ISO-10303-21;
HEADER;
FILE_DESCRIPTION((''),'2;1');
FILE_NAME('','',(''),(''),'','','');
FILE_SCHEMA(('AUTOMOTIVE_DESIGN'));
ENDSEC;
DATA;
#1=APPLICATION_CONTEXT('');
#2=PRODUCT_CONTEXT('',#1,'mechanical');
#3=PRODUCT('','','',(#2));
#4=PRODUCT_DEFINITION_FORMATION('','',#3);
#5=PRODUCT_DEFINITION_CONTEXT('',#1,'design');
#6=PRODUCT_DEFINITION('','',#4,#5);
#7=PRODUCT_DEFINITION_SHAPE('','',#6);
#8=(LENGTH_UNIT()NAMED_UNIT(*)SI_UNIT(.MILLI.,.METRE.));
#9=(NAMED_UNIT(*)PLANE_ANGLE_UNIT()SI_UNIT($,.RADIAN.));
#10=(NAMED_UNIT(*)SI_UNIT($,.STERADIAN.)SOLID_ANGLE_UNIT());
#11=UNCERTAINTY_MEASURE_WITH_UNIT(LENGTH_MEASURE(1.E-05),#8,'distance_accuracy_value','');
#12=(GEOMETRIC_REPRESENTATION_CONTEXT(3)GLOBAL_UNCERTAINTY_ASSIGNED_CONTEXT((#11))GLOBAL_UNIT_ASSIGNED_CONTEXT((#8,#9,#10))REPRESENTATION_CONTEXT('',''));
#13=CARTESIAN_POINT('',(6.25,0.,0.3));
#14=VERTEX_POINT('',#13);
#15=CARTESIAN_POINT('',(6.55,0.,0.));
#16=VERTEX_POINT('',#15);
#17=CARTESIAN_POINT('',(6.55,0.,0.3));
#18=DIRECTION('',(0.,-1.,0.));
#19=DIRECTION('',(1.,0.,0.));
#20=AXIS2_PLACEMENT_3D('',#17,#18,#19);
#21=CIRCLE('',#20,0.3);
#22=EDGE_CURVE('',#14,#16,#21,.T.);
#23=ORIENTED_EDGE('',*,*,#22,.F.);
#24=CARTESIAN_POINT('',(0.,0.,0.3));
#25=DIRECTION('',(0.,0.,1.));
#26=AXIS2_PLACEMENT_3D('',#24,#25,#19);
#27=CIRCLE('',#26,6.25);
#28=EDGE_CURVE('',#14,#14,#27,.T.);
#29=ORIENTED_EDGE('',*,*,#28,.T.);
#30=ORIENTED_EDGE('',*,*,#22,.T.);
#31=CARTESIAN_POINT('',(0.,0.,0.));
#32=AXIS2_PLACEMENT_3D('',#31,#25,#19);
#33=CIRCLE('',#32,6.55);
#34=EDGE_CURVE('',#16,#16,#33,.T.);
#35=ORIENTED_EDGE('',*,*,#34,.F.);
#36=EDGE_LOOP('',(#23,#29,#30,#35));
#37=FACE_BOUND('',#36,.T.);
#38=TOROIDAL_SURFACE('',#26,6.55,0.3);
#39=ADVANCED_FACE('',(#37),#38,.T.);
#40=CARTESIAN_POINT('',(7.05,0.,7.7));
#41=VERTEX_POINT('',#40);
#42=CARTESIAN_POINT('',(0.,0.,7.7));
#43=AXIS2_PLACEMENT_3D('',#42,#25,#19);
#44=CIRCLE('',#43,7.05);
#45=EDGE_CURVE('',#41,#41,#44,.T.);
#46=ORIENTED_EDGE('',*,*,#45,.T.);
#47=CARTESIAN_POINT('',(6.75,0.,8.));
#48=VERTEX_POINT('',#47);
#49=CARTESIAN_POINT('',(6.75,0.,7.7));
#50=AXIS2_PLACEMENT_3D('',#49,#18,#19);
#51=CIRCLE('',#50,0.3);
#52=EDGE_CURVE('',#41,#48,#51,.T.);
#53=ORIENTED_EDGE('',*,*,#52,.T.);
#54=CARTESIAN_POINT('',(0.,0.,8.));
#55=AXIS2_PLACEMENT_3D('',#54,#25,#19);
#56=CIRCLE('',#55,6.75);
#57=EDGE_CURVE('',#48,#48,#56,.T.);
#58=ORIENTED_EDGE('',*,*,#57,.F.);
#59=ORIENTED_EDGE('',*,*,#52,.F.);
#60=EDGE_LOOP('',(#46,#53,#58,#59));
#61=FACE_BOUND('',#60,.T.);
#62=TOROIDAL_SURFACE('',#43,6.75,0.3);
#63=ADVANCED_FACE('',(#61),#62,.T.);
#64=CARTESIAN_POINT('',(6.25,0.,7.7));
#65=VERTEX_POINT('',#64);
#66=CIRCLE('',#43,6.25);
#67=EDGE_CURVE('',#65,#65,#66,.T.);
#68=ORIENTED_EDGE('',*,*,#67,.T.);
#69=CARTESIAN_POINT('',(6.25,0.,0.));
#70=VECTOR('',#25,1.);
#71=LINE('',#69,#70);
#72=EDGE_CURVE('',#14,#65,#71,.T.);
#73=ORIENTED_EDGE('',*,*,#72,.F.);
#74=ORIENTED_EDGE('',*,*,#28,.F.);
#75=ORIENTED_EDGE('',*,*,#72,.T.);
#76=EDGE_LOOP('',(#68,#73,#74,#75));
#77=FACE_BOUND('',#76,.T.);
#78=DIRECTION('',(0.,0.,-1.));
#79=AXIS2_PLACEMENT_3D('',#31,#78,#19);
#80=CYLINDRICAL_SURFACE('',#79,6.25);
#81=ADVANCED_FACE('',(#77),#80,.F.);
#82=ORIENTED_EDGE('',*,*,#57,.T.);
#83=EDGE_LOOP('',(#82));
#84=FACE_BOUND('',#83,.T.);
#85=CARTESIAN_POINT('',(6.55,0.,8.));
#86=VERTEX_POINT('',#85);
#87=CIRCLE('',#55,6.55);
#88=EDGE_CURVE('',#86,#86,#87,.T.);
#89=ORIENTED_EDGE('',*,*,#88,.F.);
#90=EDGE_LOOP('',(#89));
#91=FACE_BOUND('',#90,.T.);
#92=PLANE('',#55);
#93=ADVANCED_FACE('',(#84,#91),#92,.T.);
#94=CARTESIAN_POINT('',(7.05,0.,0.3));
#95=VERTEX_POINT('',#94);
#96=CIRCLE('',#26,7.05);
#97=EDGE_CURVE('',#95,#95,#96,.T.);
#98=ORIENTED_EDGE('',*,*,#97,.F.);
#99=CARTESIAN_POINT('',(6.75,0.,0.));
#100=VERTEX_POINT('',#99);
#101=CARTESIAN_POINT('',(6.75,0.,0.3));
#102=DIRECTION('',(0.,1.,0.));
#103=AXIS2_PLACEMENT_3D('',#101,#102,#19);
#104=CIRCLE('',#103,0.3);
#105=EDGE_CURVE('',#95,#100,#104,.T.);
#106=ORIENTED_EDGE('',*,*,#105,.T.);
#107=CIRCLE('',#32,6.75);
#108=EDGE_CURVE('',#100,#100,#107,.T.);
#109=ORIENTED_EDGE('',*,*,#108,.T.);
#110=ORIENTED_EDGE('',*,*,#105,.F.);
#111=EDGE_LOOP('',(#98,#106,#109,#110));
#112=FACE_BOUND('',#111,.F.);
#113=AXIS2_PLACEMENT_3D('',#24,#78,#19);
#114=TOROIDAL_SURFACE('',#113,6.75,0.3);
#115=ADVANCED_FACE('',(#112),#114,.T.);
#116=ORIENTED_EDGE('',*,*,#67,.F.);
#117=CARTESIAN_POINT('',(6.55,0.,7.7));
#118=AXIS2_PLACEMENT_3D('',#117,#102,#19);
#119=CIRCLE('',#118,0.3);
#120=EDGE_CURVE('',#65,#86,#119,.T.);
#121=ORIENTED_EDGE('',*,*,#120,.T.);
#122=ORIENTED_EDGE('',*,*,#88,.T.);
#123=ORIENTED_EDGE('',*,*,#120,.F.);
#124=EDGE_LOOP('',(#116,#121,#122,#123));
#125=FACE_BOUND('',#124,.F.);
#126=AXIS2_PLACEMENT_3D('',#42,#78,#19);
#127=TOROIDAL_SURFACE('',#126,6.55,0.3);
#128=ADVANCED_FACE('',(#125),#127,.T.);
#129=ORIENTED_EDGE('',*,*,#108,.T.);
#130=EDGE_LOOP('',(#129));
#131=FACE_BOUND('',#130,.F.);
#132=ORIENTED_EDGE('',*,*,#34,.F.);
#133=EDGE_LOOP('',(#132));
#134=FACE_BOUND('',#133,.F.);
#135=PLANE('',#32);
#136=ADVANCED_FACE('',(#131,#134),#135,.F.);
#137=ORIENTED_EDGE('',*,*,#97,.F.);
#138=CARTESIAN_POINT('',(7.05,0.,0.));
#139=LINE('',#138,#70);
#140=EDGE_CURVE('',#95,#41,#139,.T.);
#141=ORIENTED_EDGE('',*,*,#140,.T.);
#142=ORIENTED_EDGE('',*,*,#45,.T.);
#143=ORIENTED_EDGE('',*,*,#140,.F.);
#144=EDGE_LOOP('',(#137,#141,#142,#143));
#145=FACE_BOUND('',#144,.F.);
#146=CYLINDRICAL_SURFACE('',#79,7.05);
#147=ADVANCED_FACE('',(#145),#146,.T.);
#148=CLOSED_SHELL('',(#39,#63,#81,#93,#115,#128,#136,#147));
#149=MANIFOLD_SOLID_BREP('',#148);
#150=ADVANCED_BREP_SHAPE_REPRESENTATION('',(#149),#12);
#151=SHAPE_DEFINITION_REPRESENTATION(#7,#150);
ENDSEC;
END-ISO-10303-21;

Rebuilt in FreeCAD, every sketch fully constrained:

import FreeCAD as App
import Part
import Sketcher

doc = App.newDocument("Part")
params = doc.addObject("Spreadsheet::Sheet", "Params")
for row, (alias, value) in enumerate([
    ("sketch1_diameter", "14.1 mm"),
    ("sketch1_diameter2", "12.5 mm"),
    ("pad1_length", "8 mm"),
    ("fillet_radius", "0.3 mm"),
], start=1):
    params.set(f"A{row}", alias)
    params.set(f"B{row}", "=" + value)
    params.setAlias(f"B{row}", alias)

body = doc.addObject("PartDesign::Body", "Body")

# Sketch on XY plane
sketch1 = doc.addObject("Sketcher::SketchObject", "Sketch")
body.addObject(sketch1)
sketch1.AttachmentSupport = (doc.XY_Plane, [""])
sketch1.MapMode = "FlatFace"
sketch1.addGeometry([
    Part.Circle(App.Vector(0, 0, 0), App.Vector(0, 0, 1), 7.05),
    Part.Circle(App.Vector(0, 0, 0), App.Vector(0, 0, 1), 6.25),
], False)
sketch1.addConstraint([
    Sketcher.Constraint("Coincident", 0, 3, -1, 1),
    Sketcher.Constraint("Coincident", 1, 3, -1, 1),
    Sketcher.Constraint("Diameter", 0, 14.1),
    Sketcher.Constraint("Diameter", 1, 12.5),
])
sketch1.setExpression("Constraints[2]", "Params.sketch1_diameter")
sketch1.setExpression("Constraints[3]", "Params.sketch1_diameter2")
pad1 = doc.addObject("PartDesign::Pad", "Pad")
body.addObject(pad1)
pad1.Profile = sketch1
pad1.setExpression("Length", "Params.pad1_length")
doc.recompute()

fillet = doc.addObject("PartDesign::Fillet", "Fillet")
body.addObject(fillet)
fillet.Base = (pad1, ["Edge1"])
fillet.UseAllEdges = True
fillet.setExpression("Radius", "Params.fillet_radius")

doc.recompute()
